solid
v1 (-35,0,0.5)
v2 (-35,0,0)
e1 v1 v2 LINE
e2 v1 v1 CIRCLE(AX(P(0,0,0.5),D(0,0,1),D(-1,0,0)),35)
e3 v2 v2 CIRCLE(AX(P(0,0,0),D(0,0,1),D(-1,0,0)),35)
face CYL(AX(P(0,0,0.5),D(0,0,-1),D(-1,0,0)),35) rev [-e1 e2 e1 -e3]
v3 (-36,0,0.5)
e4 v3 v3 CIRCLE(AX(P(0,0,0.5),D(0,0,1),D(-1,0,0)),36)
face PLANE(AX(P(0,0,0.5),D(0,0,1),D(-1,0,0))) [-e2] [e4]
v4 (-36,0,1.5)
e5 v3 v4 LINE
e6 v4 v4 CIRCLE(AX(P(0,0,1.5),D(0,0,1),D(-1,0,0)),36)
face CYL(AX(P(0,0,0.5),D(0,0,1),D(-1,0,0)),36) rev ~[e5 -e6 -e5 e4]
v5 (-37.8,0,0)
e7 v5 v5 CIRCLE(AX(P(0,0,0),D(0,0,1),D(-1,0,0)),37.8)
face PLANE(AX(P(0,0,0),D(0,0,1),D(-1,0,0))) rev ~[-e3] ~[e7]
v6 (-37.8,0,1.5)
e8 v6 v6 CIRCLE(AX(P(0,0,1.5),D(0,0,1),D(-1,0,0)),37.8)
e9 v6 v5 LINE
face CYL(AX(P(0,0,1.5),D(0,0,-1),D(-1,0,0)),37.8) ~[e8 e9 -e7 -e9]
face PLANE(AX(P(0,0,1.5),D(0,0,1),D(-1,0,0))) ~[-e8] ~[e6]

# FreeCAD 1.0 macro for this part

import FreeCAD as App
import Part
import Sketcher
Q = App.Units.Quantity


def add_polygon(sketch, points):
    """Adds a closed chain of lines whose ends are joined by coincident constraints."""
    first, n = sketch.GeometryCount, len(points)
    for a, b in zip(points, points[1:] + points[:1]):
        sketch.addGeometry(Part.LineSegment(App.Vector(*a, 0), App.Vector(*b, 0)), False)
    for i in range(n):
        sketch.addConstraint(Sketcher.Constraint("Coincident", first + i, 2, first + (i + 1) % n, 1))

doc = App.newDocument("Part")
body = doc.addObject("PartDesign::Body", "Body")

# Sketch on XZ plane
sketch1 = body.newObject("Sketcher::SketchObject", "Sketch")
sketch1.AttachmentSupport = (doc.getObject("XZ_Plane"), [""])
sketch1.MapMode = "FlatFace"
add_polygon(sketch1, [(-35, 0.5), (-36, 0.5), (-36, 1.5), (-37.8, 1.5), (-37.8, 0), (-35, 0)])  # lines 0-5
sketch1.addConstraint([
    Sketcher.Constraint("Horizontal", 0),
    Sketcher.Constraint("Vertical", 1),
    Sketcher.Constraint("Horizontal", 2),
    Sketcher.Constraint("Vertical", 3),
    Sketcher.Constraint("Horizontal", 4),
    Sketcher.Constraint("Vertical", 5),
    Sketcher.Constraint("PointOnObject", 3, 2, -1),
    Sketcher.Constraint("Equal", 0, 1),
    Sketcher.Constraint("DistanceX", 0, 2, -1, 1, Q("36 mm")),
    Sketcher.Constraint("DistanceX", 4, 2, -1, 1, Q("35 mm")),
    Sketcher.Constraint("DistanceX", 2, 2, -1, 1, Q("37.8 mm")),
    Sketcher.Constraint("DistanceY", 3, 2, 3, 1, Q("1.5 mm")),
])
revolution = body.newObject("PartDesign::Revolution", "Revolution")
revolution.Profile = sketch1
revolution.ReferenceAxis = (sketch1, ["V_Axis"])
revolution.Angle = 360

doc.recompute()
